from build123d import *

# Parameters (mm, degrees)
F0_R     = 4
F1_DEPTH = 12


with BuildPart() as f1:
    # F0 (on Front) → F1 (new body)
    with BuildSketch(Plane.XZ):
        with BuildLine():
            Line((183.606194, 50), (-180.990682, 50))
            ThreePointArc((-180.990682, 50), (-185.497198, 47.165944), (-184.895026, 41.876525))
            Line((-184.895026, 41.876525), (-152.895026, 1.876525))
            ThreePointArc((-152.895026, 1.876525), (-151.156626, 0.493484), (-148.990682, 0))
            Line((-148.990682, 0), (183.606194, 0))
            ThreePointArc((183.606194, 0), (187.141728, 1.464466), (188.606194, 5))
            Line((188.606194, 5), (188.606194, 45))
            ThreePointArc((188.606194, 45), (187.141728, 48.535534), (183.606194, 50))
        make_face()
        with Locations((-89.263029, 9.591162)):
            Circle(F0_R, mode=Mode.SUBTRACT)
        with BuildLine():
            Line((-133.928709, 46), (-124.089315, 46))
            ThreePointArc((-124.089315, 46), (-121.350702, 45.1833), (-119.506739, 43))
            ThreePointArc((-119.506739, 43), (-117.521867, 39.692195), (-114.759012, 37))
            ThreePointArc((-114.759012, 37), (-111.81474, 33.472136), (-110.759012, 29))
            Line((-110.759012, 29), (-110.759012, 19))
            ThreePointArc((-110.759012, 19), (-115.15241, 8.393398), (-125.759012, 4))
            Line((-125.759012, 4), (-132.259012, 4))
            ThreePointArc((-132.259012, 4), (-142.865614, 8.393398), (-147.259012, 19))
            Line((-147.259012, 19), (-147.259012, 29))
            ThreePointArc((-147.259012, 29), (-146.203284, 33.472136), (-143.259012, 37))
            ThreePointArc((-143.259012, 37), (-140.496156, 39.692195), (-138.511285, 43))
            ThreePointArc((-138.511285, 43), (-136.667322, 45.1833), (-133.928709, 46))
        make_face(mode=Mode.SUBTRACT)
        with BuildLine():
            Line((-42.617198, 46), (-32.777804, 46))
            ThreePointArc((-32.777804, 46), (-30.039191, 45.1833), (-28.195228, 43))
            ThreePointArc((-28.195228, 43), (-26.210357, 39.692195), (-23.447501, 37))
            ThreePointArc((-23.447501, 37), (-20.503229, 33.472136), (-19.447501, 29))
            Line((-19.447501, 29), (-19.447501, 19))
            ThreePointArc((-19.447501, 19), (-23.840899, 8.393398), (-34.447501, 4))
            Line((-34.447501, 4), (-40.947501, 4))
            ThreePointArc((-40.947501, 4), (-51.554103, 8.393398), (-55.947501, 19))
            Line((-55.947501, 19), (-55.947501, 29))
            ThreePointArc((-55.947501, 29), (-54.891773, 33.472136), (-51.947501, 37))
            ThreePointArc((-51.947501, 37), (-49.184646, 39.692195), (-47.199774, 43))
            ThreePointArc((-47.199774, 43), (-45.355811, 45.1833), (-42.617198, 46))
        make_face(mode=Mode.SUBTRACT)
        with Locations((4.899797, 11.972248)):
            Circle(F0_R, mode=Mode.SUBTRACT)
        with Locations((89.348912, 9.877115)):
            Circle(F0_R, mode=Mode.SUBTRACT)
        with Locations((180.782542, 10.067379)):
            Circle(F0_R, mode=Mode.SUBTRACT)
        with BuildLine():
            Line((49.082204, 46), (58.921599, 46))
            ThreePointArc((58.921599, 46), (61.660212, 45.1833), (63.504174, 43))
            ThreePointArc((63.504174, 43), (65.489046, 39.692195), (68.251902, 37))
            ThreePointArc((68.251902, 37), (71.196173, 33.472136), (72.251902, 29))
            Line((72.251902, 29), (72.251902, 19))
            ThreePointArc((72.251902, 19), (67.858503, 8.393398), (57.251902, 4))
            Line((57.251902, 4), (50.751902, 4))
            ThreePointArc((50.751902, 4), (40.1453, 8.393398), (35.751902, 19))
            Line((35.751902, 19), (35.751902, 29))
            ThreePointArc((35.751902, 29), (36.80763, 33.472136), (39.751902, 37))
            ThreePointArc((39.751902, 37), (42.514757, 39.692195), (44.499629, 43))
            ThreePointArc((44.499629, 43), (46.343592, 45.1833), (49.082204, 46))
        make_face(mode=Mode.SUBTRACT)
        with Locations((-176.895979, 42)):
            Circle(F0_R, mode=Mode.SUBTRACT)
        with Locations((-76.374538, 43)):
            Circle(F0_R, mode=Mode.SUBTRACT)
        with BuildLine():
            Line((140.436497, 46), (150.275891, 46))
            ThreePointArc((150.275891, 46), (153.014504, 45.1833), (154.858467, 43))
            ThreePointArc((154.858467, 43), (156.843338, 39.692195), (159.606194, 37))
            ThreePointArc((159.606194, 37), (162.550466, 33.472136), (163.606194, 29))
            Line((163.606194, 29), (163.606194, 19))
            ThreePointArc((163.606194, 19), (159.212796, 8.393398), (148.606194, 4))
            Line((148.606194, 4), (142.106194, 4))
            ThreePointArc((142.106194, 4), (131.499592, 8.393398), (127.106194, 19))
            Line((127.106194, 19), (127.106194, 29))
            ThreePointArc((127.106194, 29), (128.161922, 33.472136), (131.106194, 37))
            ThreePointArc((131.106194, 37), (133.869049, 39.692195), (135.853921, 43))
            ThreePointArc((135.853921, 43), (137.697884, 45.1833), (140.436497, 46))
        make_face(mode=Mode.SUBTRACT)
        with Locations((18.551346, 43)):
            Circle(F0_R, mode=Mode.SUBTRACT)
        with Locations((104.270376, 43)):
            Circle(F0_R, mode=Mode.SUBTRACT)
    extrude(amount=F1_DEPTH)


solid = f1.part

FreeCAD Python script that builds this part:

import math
import FreeCAD as App
import Part
import Sketcher

V = App.Vector

doc = App.newDocument("Part")
params = doc.addObject("Spreadsheet::Sheet", "Params")
for row, (alias, value) in enumerate([
    ("sketch1_diameter", "8 mm"),
    ("sketch1_radius", "5 mm"),
    ("sketch1_radius2", "9.999999 mm"),
    ("sketch1_radius3", "14.999999 mm"),
    ("sketch1_height", "40 mm"),
    ("pad1_length", "12 mm"),
], start=1):
    params.set(f"A{row}", alias)
    params.set(f"B{row}", "=" + value)
    params.setAlias(f"B{row}", alias)

body = doc.addObject("PartDesign::Body", "Body")

sketch1 = body.newObject("Sketcher::SketchObject", "Sketch")
sketch1.AttachmentSupport = (doc.getObject("XZ_Plane"), [""])
sketch1.MapMode = "FlatFace"
sketch1.addGeometry(Part.LineSegment(V(183.606194, 50, 0), V(-180.990682, 50, 0)), False)
sketch1.addGeometry(Part.ArcOfCircle(Part.Circle(V(-180.990682, 45, 0), V(0, 0, 1), 5), math.radians(89.999999), math.radians(218.659808)), False)
sketch1.addGeometry(Part.LineSegment(V(-184.895026, 41.876525, 0), V(-152.895026, 1.876525, 0)), False)
sketch1.addGeometry(Part.ArcOfCircle(Part.Circle(V(-148.990682, 4.999999, 0), V(0, 0, 1), 4.999999), math.radians(-141.3402), math.radians(-89.999998)), False)
sketch1.addGeometry(Part.LineSegment(V(-148.990682, 0, 0), V(183.606194, 0, 0)), False)
sketch1.addGeometry(Part.ArcOfCircle(Part.Circle(V(183.606194, 5, 0), V(0, 0, 1), 5), math.radians(-90.000004), math.radians(0.000004)), False)
sketch1.addGeometry(Part.LineSegment(V(188.606194, 5, 0), V(188.606194, 45, 0)), False)
sketch1.addGeometry(Part.ArcOfCircle(Part.Circle(V(183.606194, 45, 0), V(0, 0, 1), 5), math.radians(-0.000004), math.radians(90.000004)), False)
sketch1.addGeometry(Part.Circle(V(-89.263029, 9.591162, 0), V(0, 0, 1), 4), False)
sketch1.addGeometry(Part.ArcOfCircle(Part.Circle(V(-133.928709, 40.999999, 0), V(0, 0, 1), 5.000001), math.radians(90.000003), math.radians(156.421815)), False)
sketch1.addGeometry(Part.LineSegment(V(-133.928709, 46, 0), V(-124.089315, 46, 0)), False)
sketch1.addGeometry(Part.ArcOfCircle(Part.Circle(V(-124.089315, 40.999999, 0), V(0, 0, 1), 5.000001), math.radians(23.578185), math.radians(89.999997)), False)
sketch1.addGeometry(Part.ArcOfCircle(Part.Circle(V(-105.759006, 49.000004, 0), V(0, 0, 1), 15.000007), math.radians(-156.421815), math.radians(-126.869905)), False)
sketch1.addGeometry(Part.ArcOfCircle(Part.Circle(V(-120.759011, 29, 0), V(0, 0, 1), 9.999999), math.radians(-0.000002), math.radians(53.130105)), False)
sketch1.addGeometry(Part.LineSegment(V(-110.759012, 29, 0), V(-110.759012, 19, 0)), False)
sketch1.addGeometry(Part.ArcOfCircle(Part.Circle(V(-125.759011, 18.999999, 0), V(0, 0, 1), 14.999999), math.radians(-90.000004), math.radians(0.000004)), False)
sketch1.addGeometry(Part.LineSegment(V(-125.759012, 4, 0), V(-132.259012, 4, 0)), False)
sketch1.addGeometry(Part.ArcOfCircle(Part.Circle(V(-132.259013, 18.999999, 0), V(0, 0, 1), 14.999999), math.radians(179.999996), math.radians(270.000004)), False)
sketch1.addGeometry(Part.LineSegment(V(-147.259012, 19, 0), V(-147.259012, 29, 0)), False)
sketch1.addGeometry(Part.ArcOfCircle(Part.Circle(V(-137.259013, 29, 0), V(0, 0, 1), 9.999999), math.radians(126.869895), math.radians(180.000002)), False)
sketch1.addGeometry(Part.ArcOfCircle(Part.Circle(V(-152.258999, 48.99999, 0), V(0, 0, 1), 14.999984), math.radians(-53.130118), math.radians(-23.578162)), False)
sketch1.addGeometry(Part.ArcOfCircle(Part.Circle(V(-42.617198, 40.999999, 0), V(0, 0, 1), 5.000001), math.radians(90.000003), math.radians(156.421815)), False)
sketch1.addGeometry(Part.LineSegment(V(-42.617198, 46, 0), V(-32.777804, 46, 0)), False)
sketch1.addGeometry(Part.ArcOfCircle(Part.Circle(V(-32.777804, 40.999999, 0), V(0, 0, 1), 5.000001), math.radians(23.578185), math.radians(89.999997)), False)
sketch1.addGeometry(Part.ArcOfCircle(Part.Circle(V(-14.447514, 48.99999, 0), V(0, 0, 1), 14.999984), math.radians(-156.421838), math.radians(-126.869882)), False)
sketch1.addGeometry(Part.ArcOfCircle(Part.Circle(V(-29.4475, 29, 0), V(0, 0, 1), 9.999999), math.radians(-0.000002), math.radians(53.130105)), False)
sketch1.addGeometry(Part.LineSegment(V(-19.447501, 29, 0), V(-19.447501, 19, 0)), False)
sketch1.addGeometry(Part.ArcOfCircle(Part.Circle(V(-34.4475, 18.999999, 0), V(0, 0, 1), 14.999999), math.radians(-90.000004), math.radians(0.000004)), False)
sketch1.addGeometry(Part.LineSegment(V(-34.447501, 4, 0), V(-40.947501, 4, 0)), False)
sketch1.addGeometry(Part.ArcOfCircle(Part.Circle(V(-40.947502, 18.999999, 0), V(0, 0, 1), 14.999999), math.radians(179.999996), math.radians(270.000004)), False)
sketch1.addGeometry(Part.LineSegment(V(-55.947501, 19, 0), V(-55.947501, 29, 0)), False)
sketch1.addGeometry(Part.ArcOfCircle(Part.Circle(V(-45.947502, 29, 0), V(0, 0, 1), 9.999999), math.radians(126.869895), math.radians(180.000002)), False)
sketch1.addGeometry(Part.ArcOfCircle(Part.Circle(V(-60.947507, 49.000004, 0), V(0, 0, 1), 15.000007), math.radians(-53.130095), math.radians(-23.578185)), False)
sketch1.addGeometry(Part.Circle(V(4.899797, 11.972248, 0), V(0, 0, 1), 4), False)
sketch1.addGeometry(Part.Circle(V(89.348912, 9.877115, 0), V(0, 0, 1), 4), False)
sketch1.addGeometry(Part.Circle(V(180.782542, 10.067379, 0), V(0, 0, 1), 4), False)
sketch1.addGeometry(Part.ArcOfCircle(Part.Circle(V(49.082205, 40.999999, 0), V(0, 0, 1), 5.000001), math.radians(90.000014), math.radians(156.421815)), False)
sketch1.addGeometry(Part.LineSegment(V(49.082204, 46, 0), V(58.921599, 46, 0)), False)
sketch1.addGeometry(Part.ArcOfCircle(Part.Circle(V(58.9216, 41.000002, 0), V(0, 0, 1), 4.999998), math.radians(23.578164), math.radians(90.000007)), False)
sketch1.addGeometry(Part.ArcOfCircle(Part.Circle(V(77.251899, 49, 0), V(0, 0, 1), 14.999998), math.radians(-156.421819), math.radians(-126.869889)), False)
sketch1.addGeometry(Part.ArcOfCircle(Part.Circle(V(62.251895, 28.999997, 0), V(0, 0, 1), 10.000007), math.radians(0.000019), math.radians(53.130083)), False)
sketch1.addGeometry(Part.LineSegment(V(72.251902, 29, 0), V(72.251902, 19, 0)), False)
sketch1.addGeometry(Part.ArcOfCircle(Part.Circle(V(57.251901, 19.000001, 0), V(0, 0, 1), 15.000001), math.radians(-89.999997), math.radians(-0.000003)), False)
sketch1.addGeometry(Part.LineSegment(V(57.251902, 4, 0), V(50.751902, 4, 0)), False)
sketch1.addGeometry(Part.ArcOfCircle(Part.Circle(V(50.751901, 18.999999, 0), V(0, 0, 1), 14.999999), math.radians(179.999996), math.radians(270.000004)), False)
sketch1.addGeometry(Part.LineSegment(V(35.751902, 19, 0), V(35.751902, 29, 0)), False)
sketch1.addGeometry(Part.ArcOfCircle(Part.Circle(V(45.751901, 29, 0), V(0, 0, 1), 9.999999), math.radians(126.869895), math.radians(180.000002)), False)
sketch1.addGeometry(Part.ArcOfCircle(Part.Circle(V(30.751896, 49.000004, 0), V(0, 0, 1), 15.000007), math.radians(-53.130095), math.radians(-23.578185)), False)
sketch1.addGeometry(Part.ArcOfCircle(Part.Circle(V(140.436497, 40.999999, 0), V(0, 0, 1), 5.000001), math.radians(90.000003), math.radians(156.421815)), False)
sketch1.addGeometry(Part.LineSegment(V(140.436497, 46, 0), V(150.275891, 46, 0)), False)
sketch1.addGeometry(Part.ArcOfCircle(Part.Circle(V(150.275891, 40.999999, 0), V(0, 0, 1), 5.000001), math.radians(23.578185), math.radians(89.999997)), False)
sketch1.addGeometry(Part.ArcOfCircle(Part.Circle(V(168.606181, 48.99999, 0), V(0, 0, 1), 14.999984), math.radians(-156.421838), math.radians(-126.869882)), False)
sketch1.addGeometry(Part.ArcOfCircle(Part.Circle(V(153.606195, 29, 0), V(0, 0, 1), 9.999999), math.radians(-0.000002), math.radians(53.130105)), False)
sketch1.addGeometry(Part.LineSegment(V(163.606194, 29, 0), V(163.606194, 19, 0)), False)
sketch1.addGeometry(Part.ArcOfCircle(Part.Circle(V(148.606195, 18.999999, 0), V(0, 0, 1), 14.999999), math.radians(-90.000004), math.radians(0.000004)), False)
sketch1.addGeometry(Part.LineSegment(V(148.606194, 4, 0), V(142.106194, 4, 0)), False)
sketch1.addGeometry(Part.ArcOfCircle(Part.Circle(V(142.106193, 18.999999, 0), V(0, 0, 1), 14.999999), math.radians(179.999996), math.radians(270.000004)), False)
sketch1.addGeometry(Part.LineSegment(V(127.106194, 19, 0), V(127.106194, 29, 0)), False)
sketch1.addGeometry(Part.ArcOfCircle(Part.Circle(V(137.106193, 29, 0), V(0, 0, 1), 9.999999), math.radians(126.869895), math.radians(180.000002)), False)
sketch1.addGeometry(Part.ArcOfCircle(Part.Circle(V(122.106188, 49.000004, 0), V(0, 0, 1), 15.000007), math.radians(-53.130095), math.radians(-23.578185)), False)
sketch1.addGeometry(Part.Circle(V(-176.895979, 42, 0), V(0, 0, 1), 4), False)
sketch1.addGeometry(Part.Circle(V(-76.374538, 43, 0), V(0, 0, 1), 4), False)
sketch1.addGeometry(Part.Circle(V(18.551346, 43, 0), V(0, 0, 1), 4), False)
sketch1.addGeometry(Part.Circle(V(104.270376, 43, 0), V(0, 0, 1), 4), False)
sketch1.addConstraint(Sketcher.Constraint("Tangent", 0, 2, 1, 1))
sketch1.addConstraint(Sketcher.Constraint("Tangent", 1, 2, 2, 1))
sketch1.addConstraint(Sketcher.Constraint("Tangent", 2, 2, 3, 1))
sketch1.addConstraint(Sketcher.Constraint("Tangent", 3, 2, 4, 1))
sketch1.addConstraint(Sketcher.Constraint("Tangent", 4, 2, 5, 1))
sketch1.addConstraint(Sketcher.Constraint("Tangent", 5, 2, 6, 1))
sketch1.addConstraint(Sketcher.Constraint("Tangent", 6, 2, 7, 1))
sketch1.addConstraint(Sketcher.Constraint("Tangent", 7, 2, 0, 1))
sketch1.addConstraint(Sketcher.Constraint("Tangent", 9, 1, 10, 1))
sketch1.addConstraint(Sketcher.Constraint("Tangent", 10, 2, 11, 2))
sketch1.addConstraint(Sketcher.Constraint("Tangent", 11, 1, 12, 1))
sketch1.addConstraint(Sketcher.Constraint("Tangent", 12, 2, 13, 2))
sketch1.addConstraint(Sketcher.Constraint("Tangent", 13, 1, 14, 1))
sketch1.addConstraint(Sketcher.Constraint("Tangent", 14, 2, 15, 2))
sketch1.addConstraint(Sketcher.Constraint("Tangent", 15, 1, 16, 1))
sketch1.addConstraint(Sketcher.Constraint("Tangent", 16, 2, 17, 2))
sketch1.addConstraint(Sketcher.Constraint("Tangent", 17, 1, 18, 1))
sketch1.addConstraint(Sketcher.Constraint("Tangent", 18, 2, 19, 2))
sketch1.addConstraint(Sketcher.Constraint("Tangent", 19, 1, 20, 1))
sketch1.addConstraint(Sketcher.Constraint("Tangent", 20, 2, 9, 2))
sketch1.addConstraint(Sketcher.Constraint("Tangent", 21, 1, 22, 1))
sketch1.addConstraint(Sketcher.Constraint("Tangent", 22, 2, 23, 2))
sketch1.addConstraint(Sketcher.Constraint("Tangent", 23, 1, 24, 1))
sketch1.addConstraint(Sketcher.Constraint("Tangent", 24, 2, 25, 2))
sketch1.addConstraint(Sketcher.Constraint("Tangent", 25, 1, 26, 1))
sketch1.addConstraint(Sketcher.Constraint("Tangent", 26, 2, 27, 2))
sketch1.addConstraint(Sketcher.Constraint("Tangent", 27, 1, 28, 1))
sketch1.addConstraint(Sketcher.Constraint("Tangent", 28, 2, 29, 2))
sketch1.addConstraint(Sketcher.Constraint("Tangent", 29, 1, 30, 1))
sketch1.addConstraint(Sketcher.Constraint("Tangent", 30, 2, 31, 2))
sketch1.addConstraint(Sketcher.Constraint("Tangent", 31, 1, 32, 1))
sketch1.addConstraint(Sketcher.Constraint("Tangent", 32, 2, 21, 2))
sketch1.addConstraint(Sketcher.Constraint("Tangent", 36, 1, 37, 1))
sketch1.addConstraint(Sketcher.Constraint("Tangent", 37, 2, 38, 2))
sketch1.addConstraint(Sketcher.Constraint("Tangent", 38, 1, 39, 1))
sketch1.addConstraint(Sketcher.Constraint("Tangent", 39, 2, 40, 2))
sketch1.addConstraint(Sketcher.Constraint("Tangent", 40, 1, 41, 1))
sketch1.addConstraint(Sketcher.Constraint("Tangent", 41, 2, 42, 2))
sketch1.addConstraint(Sketcher.Constraint("Tangent", 42, 1, 43, 1))
sketch1.addConstraint(Sketcher.Constraint("Tangent", 43, 2, 44, 2))
sketch1.addConstraint(Sketcher.Constraint("Tangent", 44, 1, 45, 1))
sketch1.addConstraint(Sketcher.Constraint("Tangent", 45, 2, 46, 2))
sketch1.addConstraint(Sketcher.Constraint("Tangent", 46, 1, 47, 1))
sketch1.addConstraint(Sketcher.Constraint("Tangent", 47, 2, 36, 2))
sketch1.addConstraint(Sketcher.Constraint("Tangent", 48, 1, 49, 1))
sketch1.addConstraint(Sketcher.Constraint("Tangent", 49, 2, 50, 2))
sketch1.addConstraint(Sketcher.Constraint("Tangent", 50, 1, 51, 1))
sketch1.addConstraint(Sketcher.Constraint("Tangent", 51, 2, 52, 2))
sketch1.addConstraint(Sketcher.Constraint("Tangent", 52, 1, 53, 1))
sketch1.addConstraint(Sketcher.Constraint("Tangent", 53, 2, 54, 2))
sketch1.addConstraint(Sketcher.Constraint("Tangent", 54, 1, 55, 1))
sketch1.addConstraint(Sketcher.Constraint("Tangent", 55, 2, 56, 2))
sketch1.addConstraint(Sketcher.Constraint("Tangent", 56, 1, 57, 1))
sketch1.addConstraint(Sketcher.Constraint("Tangent", 57, 2, 58, 2))
sketch1.addConstraint(Sketcher.Constraint("Tangent", 58, 1, 59, 1))
sketch1.addConstraint(Sketcher.Constraint("Tangent", 59, 2, 48, 2))
sketch1.addConstraint(Sketcher.Constraint("Horizontal", 0))
sketch1.addConstraint(Sketcher.Constraint("Horizontal", 4))
sketch1.addConstraint(Sketcher.Constraint("Vertical", 6))
sketch1.addConstraint(Sketcher.Constraint("Horizontal", 10))
sketch1.addConstraint(Sketcher.Constraint("Vertical", 14))
sketch1.addConstraint(Sketcher.Constraint("Horizontal", 16))
sketch1.addConstraint(Sketcher.Constraint("Vertical", 18))
sketch1.addConstraint(Sketcher.Constraint("Horizontal", 22))
sketch1.addConstraint(Sketcher.Constraint("Vertical", 26))
sketch1.addConstraint(Sketcher.Constraint("Horizontal", 28))
sketch1.addConstraint(Sketcher.Constraint("Vertical", 30))
sketch1.addConstraint(Sketcher.Constraint("Horizontal", 37))
sketch1.addConstraint(Sketcher.Constraint("Vertical", 41))
sketch1.addConstraint(Sketcher.Constraint("Horizontal", 43))
sketch1.addConstraint(Sketcher.Constraint("Vertical", 45))
sketch1.addConstraint(Sketcher.Constraint("Horizontal", 49))
sketch1.addConstraint(Sketcher.Constraint("Vertical", 53))
sketch1.addConstraint(Sketcher.Constraint("Horizontal", 55))
sketch1.addConstraint(Sketcher.Constraint("Vertical", 57))
sketch1.addConstraint(Sketcher.Constraint("Equal", 1, 3))
sketch1.addConstraint(Sketcher.Constraint("Equal", 3, 5))
sketch1.addConstraint(Sketcher.Constraint("Equal", 5, 7))
sketch1.addConstraint(Sketcher.Constraint("Equal", 7, 9))
sketch1.addConstraint(Sketcher.Constraint("Equal", 9, 11))
sketch1.addConstraint(Sketcher.Constraint("Equal", 15, 17))
sketch1.addConstraint(Sketcher.Constraint("Equal", 13, 19))
sketch1.addConstraint(Sketcher.Constraint("Equal", 11, 21))
sketch1.addConstraint(Sketcher.Constraint("Equal", 21, 23))
sketch1.addConstraint(Sketcher.Constraint("Equal", 20, 24))
sketch1.addConstraint(Sketcher.Constraint("Equal", 19, 25))
sketch1.addConstraint(Sketcher.Constraint("Equal", 17, 27))
sketch1.addConstraint(Sketcher.Constraint("Equal", 27, 29))
sketch1.addConstraint(Sketcher.Constraint("Equal", 25, 31))
sketch1.addConstraint(Sketcher.Constraint("Equal", 12, 32))
sketch1.addConstraint(Sketcher.Constraint("Equal", 8, 33))
sketch1.addConstraint(Sketcher.Constraint("Equal", 33, 34))
sketch1.addConstraint(Sketcher.Constraint("Equal", 34, 35))
sketch1.addConstraint(Sketcher.Constraint("Equal", 23, 36))
sketch1.addConstraint(Sketcher.Constraint("Equal", 7, 38))
sketch1.addConstraint(Sketcher.Constraint("Equal", 29, 39))
sketch1.addConstraint(Sketcher.Constraint("Equal", 29, 42))
sketch1.addConstraint(Sketcher.Constraint("Equal", 42, 44))
sketch1.addConstraint(Sketcher.Constraint("Equal", 31, 46))
sketch1.addConstraint(Sketcher.Constraint("Equal", 32, 47))
sketch1.addConstraint(Sketcher.Constraint("Equal", 36, 48))
sketch1.addConstraint(Sketcher.Constraint("Equal", 48, 50))
sketch1.addConstraint(Sketcher.Constraint("Equal", 24, 51))
sketch1.addConstraint(Sketcher.Constraint("Equal", 46, 52))
sketch1.addConstraint(Sketcher.Constraint("Equal", 44, 54))
sketch1.addConstraint(Sketcher.Constraint("Equal", 54, 56))
sketch1.addConstraint(Sketcher.Constraint("Equal", 52, 58))
sketch1.addConstraint(Sketcher.Constraint("Equal", 47, 59))
sketch1.addConstraint(Sketcher.Constraint("Equal", 35, 60))
sketch1.addConstraint(Sketcher.Constraint("Equal", 60, 61))
sketch1.addConstraint(Sketcher.Constraint("Equal", 61, 62))
sketch1.addConstraint(Sketcher.Constraint("Equal", 62, 63))
sketch1.addConstraint(Sketcher.Constraint("PointOnObject", 3, 2, -1))
sketch1.addConstraint(Sketcher.Constraint("Horizontal", 13, 3, 19, 3))
sketch1.addConstraint(Sketcher.Constraint("Horizontal", 11, 3, 21, 3))
sketch1.addConstraint(Sketcher.Constraint("Horizontal", 20, 3, 24, 3))
sketch1.addConstraint(Sketcher.Constraint("Horizontal", 19, 3, 25, 3))
sketch1.addConstraint(Sketcher.Constraint("Horizontal", 17, 3, 27, 3))
sketch1.addConstraint(Sketcher.Constraint("Horizontal", 25, 3, 31, 3))
sketch1.addConstraint(Sketcher.Constraint("Horizontal", 12, 3, 32, 3))
sketch1.addConstraint(Sketcher.Constraint("Horizontal", 23, 3, 36, 3))
sketch1.addConstraint(Sketcher.Constraint("Horizontal", 29, 3, 42, 3))
sketch1.addConstraint(Sketcher.Constraint("Horizontal", 31, 3, 46, 3))
sketch1.addConstraint(Sketcher.Constraint("Horizontal", 32, 3, 47, 3))
sketch1.addConstraint(Sketcher.Constraint("Horizontal", 36, 3, 48, 3))
sketch1.addConstraint(Sketcher.Constraint("Horizontal", 24, 3, 51, 3))
sketch1.addConstraint(Sketcher.Constraint("Horizontal", 46, 3, 52, 3))
sketch1.addConstraint(Sketcher.Constraint("Horizontal", 44, 3, 54, 3))
sketch1.addConstraint(Sketcher.Constraint("Horizontal", 52, 3, 58, 3))
sketch1.addConstraint(Sketcher.Constraint("Horizontal", 47, 3, 59, 3))
sketch1.addConstraint(Sketcher.Constraint("Horizontal", 61, 3, 62, 3))
sketch1.addConstraint(Sketcher.Constraint("Horizontal", 62, 3, 63, 3))
sketch1.addConstraint(Sketcher.Constraint("Horizontal", 63, 3, 11, 1))
sketch1.addConstraint(Sketcher.Constraint("Horizontal", 12, 2, 19, 1))
sketch1.addConstraint(Sketcher.Constraint("Horizontal", 11, 1, 20, 2))
sketch1.addConstraint(Sketcher.Constraint("Horizontal", 32, 2, 38, 1))
sketch1.addConstraint(Sketcher.Constraint("Horizontal", 31, 1, 39, 2))
sketch1.addConstraint(Sketcher.Constraint("Horizontal", 30, 2, 40, 1))
sketch1.addConstraint(Sketcher.Constraint("Equal", 10, 22))
sketch1.addConstraint(Sketcher.Constraint("Equal", 22, 37))
sketch1.addConstraint(Sketcher.Constraint("Equal", 28, 43))
sketch1.addConstraint(Sketcher.Constraint("Equal", 37, 49))
sketch1.addConstraint(Sketcher.Constraint("Diameter", 8, 8.0))
sketch1.addConstraint(Sketcher.Constraint("Radius", 1, 5.0))
sketch1.addConstraint(Sketcher.Constraint("Radius", 13, 9.999999))
sketch1.addConstraint(Sketcher.Constraint("Radius", 15, 14.999999))
sketch1.addConstraint(Sketcher.Constraint("DistanceY", 6, 1, 6, 2, 40.0))
sketch1.addConstraint(Sketcher.Constraint("DistanceY", 14, 2, 14, 1, 10.0))
sketch1.addConstraint(Sketcher.Constraint("DistanceX", 16, 2, 16, 1, 6.5))
sketch1.addConstraint(Sketcher.Constraint("DistanceY", -1, 1, 9, 3, 40.999999))
sketch1.addConstraint(Sketcher.Constraint("DistanceY", -1, 1, 13, 3, 29.0))
sketch1.addConstraint(Sketcher.Constraint("DistanceY", -1, 1, 39, 3, 49.0))
sketch1.addConstraint(Sketcher.Constraint("DistanceY", -1, 1, 60, 3, 42.0))
sketch1.addConstraint(Sketcher.Constraint("DistanceX", 20, 3, -1, 1, 152.258999))
sketch1.addConstraint(Sketcher.Constraint("DistanceX", 25, 3, -1, 1, 29.4475))
sketch1.addConstraint(Sketcher.Constraint("DistanceX", -1, 1, 38, 3, 58.9216))
sketch1.addConstraint(Sketcher.Constraint("DistanceX", 0, 2, 0, 1, 364.596876))
sketch1.addConstraint(Sketcher.Constraint("DistanceX", 4, 1, 4, 2, 332.596876))
sketch1.addConstraint(Sketcher.Constraint("DistanceX", 8, 3, -1, 1, 89.263029))
sketch1.addConstraint(Sketcher.Constraint("DistanceX", -1, 1, 34, 3, 89.348912))
sketch1.addConstraint(Sketcher.Constraint("DistanceX", -1, 1, 35, 3, 180.782542))
sketch1.addConstraint(Sketcher.Constraint("DistanceY", -1, 1, 35, 3, 10.067379))
sketch1.addConstraint(Sketcher.Constraint("DistanceX", -1, 1, 50, 3, 150.275891))
sketch1.addConstraint(Sketcher.Constraint("DistanceX", 60, 3, -1, 1, 176.895979))
sketch1.addConstraint(Sketcher.Constraint("DistanceX", 61, 3, -1, 1, 76.374538))
sketch1.addConstraint(Sketcher.Constraint("DistanceX", 0, 2, -1, 1, 180.990682))
sketch1.addConstraint(Sketcher.Constraint("DistanceY", -1, 1, 8, 3, 9.591162))
sketch1.addConstraint(Sketcher.Constraint("DistanceX", -1, 1, 33, 3, 4.899797))
sketch1.addConstraint(Sketcher.Constraint("DistanceY", -1, 1, 33, 3, 11.972248))
sketch1.addConstraint(Sketcher.Constraint("DistanceY", -1, 1, 34, 3, 9.877115))
sketch1.addConstraint(Sketcher.Constraint("DistanceX", -1, 1, 62, 3, 18.551346))
sketch1.addConstraint(Sketcher.Constraint("DistanceX", -1, 1, 63, 3, 104.270376))
sketch1.setExpression("Constraints[142]", "Params.sketch1_diameter")
sketch1.setExpression("Constraints[143]", "Params.sketch1_radius")
sketch1.setExpression("Constraints[144]", "Params.sketch1_radius2")
sketch1.setExpression("Constraints[145]", "Params.sketch1_radius3")
sketch1.setExpression("Constraints[146]", "Params.sketch1_height")
pad1 = body.newObject("PartDesign::Pad", "Pad")
pad1.Profile = sketch1
pad1.setExpression("Length", "Params.pad1_length")

doc.recompute()
